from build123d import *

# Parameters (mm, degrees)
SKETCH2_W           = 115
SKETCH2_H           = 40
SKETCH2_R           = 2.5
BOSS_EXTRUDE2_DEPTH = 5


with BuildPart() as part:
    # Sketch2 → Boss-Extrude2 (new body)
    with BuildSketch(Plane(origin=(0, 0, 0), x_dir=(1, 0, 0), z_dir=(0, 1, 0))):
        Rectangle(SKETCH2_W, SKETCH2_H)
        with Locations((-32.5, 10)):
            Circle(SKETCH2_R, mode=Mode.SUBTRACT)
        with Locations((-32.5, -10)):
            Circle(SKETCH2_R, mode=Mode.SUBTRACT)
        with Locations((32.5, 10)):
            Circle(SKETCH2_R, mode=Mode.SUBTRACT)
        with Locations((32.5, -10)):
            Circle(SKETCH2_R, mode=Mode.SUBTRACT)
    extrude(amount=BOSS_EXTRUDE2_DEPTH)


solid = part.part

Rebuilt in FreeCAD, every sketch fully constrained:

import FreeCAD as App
import Part
import Sketcher
Q = App.Units.Quantity

doc = App.newDocument("Part")
params = doc.addObject("Spreadsheet::Sheet", "Params")
for row, (alias, value) in enumerate([
    ("sketch1_diameter", "5 mm"),
    ("sketch1_width", "115 mm"),
    ("sketch1_height", "40 mm"),
    ("pad1_length", "5 mm"),
], start=1):
    params.set(f"A{row}", alias)
    params.set(f"B{row}", "=" + value)
    params.setAlias(f"B{row}", alias)

body = doc.addObject("PartDesign::Body", "Body")

# Sketch on XZ plane
sketch1 = body.newObject("Sketcher::SketchObject", "Sketch")
sketch1.AttachmentSupport = (doc.getObject("XZ_Plane"), [""])
sketch1.MapMode = "FlatFace"
sketch1.addGeometry([
    Part.LineSegment(App.Vector(-57.5, -20, 0), App.Vector(-57.5, 20, 0)),  # 0
    Part.LineSegment(App.Vector(-57.5, 20, 0), App.Vector(57.5, 20, 0)),  # 1
    Part.LineSegment(App.Vector(57.5, 20, 0), App.Vector(57.5, -20, 0)),  # 2
    Part.LineSegment(App.Vector(57.5, -20, 0), App.Vector(-57.5, -20, 0)),  # 3
    Part.Circle(App.Vector(-32.5, 10, 0), App.Vector(0, 0, 1), 2.5),  # 4
    Part.Circle(App.Vector(32.5, 10, 0), App.Vector(0, 0, 1), 2.5),  # 5
    Part.Circle(App.Vector(-32.5, -10, 0), App.Vector(0, 0, 1), 2.5),  # 6
    Part.Circle(App.Vector(32.5, -10, 0), App.Vector(0, 0, 1), 2.5),  # 7
], False)
sketch1.addConstraint([
    Sketcher.Constraint("Coincident", 0, 2, 1, 1),
    Sketcher.Constraint("Coincident", 1, 2, 2, 1),
    Sketcher.Constraint("Coincident", 2, 2, 3, 1),
    Sketcher.Constraint("Coincident", 3, 2, 0, 1),
    Sketcher.Constraint("Vertical", 0),
    Sketcher.Constraint("Horizontal", 1),
    Sketcher.Constraint("Vertical", 2),
    Sketcher.Constraint("Horizontal", 3),
    Sketcher.Constraint("Equal", 4, 5),
    Sketcher.Constraint("Equal", 5, 6),
    Sketcher.Constraint("Equal", 6, 7),
    Sketcher.Constraint("Symmetric", 5, 3, 6, 3, -1, 1),
    Sketcher.Constraint("Symmetric", 4, 3, 7, 3, -1, 1),
    Sketcher.Constraint("Symmetric", 0, 2, 2, 2, -1, 1),
    Sketcher.Constraint("Symmetric", 4, 3, 5, 3, -2),
    Sketcher.Constraint("Diameter", 4, Q("5 mm")),
    Sketcher.Constraint("DistanceX", 1, 1, 1, 2, Q("115 mm")),
    Sketcher.Constraint("DistanceY", 0, 1, 0, 2, Q("40 mm")),
    Sketcher.Constraint("DistanceY", -1, 1, 4, 3, Q("10 mm")),
    Sketcher.Constraint("DistanceX", 4, 3, 5, 3, Q("65 mm")),
])
sketch1.setExpression("Constraints[15]", "Params.sketch1_diameter")
sketch1.setExpression("Constraints[16]", "Params.sketch1_width")
sketch1.setExpression("Constraints[17]", "Params.sketch1_height")
pad1 = body.newObject("PartDesign::Pad", "Pad")
pad1.Profile = sketch1
pad1.setExpression("Length", "Params.pad1_length")
pad1.Reversed = True

doc.recompute()
